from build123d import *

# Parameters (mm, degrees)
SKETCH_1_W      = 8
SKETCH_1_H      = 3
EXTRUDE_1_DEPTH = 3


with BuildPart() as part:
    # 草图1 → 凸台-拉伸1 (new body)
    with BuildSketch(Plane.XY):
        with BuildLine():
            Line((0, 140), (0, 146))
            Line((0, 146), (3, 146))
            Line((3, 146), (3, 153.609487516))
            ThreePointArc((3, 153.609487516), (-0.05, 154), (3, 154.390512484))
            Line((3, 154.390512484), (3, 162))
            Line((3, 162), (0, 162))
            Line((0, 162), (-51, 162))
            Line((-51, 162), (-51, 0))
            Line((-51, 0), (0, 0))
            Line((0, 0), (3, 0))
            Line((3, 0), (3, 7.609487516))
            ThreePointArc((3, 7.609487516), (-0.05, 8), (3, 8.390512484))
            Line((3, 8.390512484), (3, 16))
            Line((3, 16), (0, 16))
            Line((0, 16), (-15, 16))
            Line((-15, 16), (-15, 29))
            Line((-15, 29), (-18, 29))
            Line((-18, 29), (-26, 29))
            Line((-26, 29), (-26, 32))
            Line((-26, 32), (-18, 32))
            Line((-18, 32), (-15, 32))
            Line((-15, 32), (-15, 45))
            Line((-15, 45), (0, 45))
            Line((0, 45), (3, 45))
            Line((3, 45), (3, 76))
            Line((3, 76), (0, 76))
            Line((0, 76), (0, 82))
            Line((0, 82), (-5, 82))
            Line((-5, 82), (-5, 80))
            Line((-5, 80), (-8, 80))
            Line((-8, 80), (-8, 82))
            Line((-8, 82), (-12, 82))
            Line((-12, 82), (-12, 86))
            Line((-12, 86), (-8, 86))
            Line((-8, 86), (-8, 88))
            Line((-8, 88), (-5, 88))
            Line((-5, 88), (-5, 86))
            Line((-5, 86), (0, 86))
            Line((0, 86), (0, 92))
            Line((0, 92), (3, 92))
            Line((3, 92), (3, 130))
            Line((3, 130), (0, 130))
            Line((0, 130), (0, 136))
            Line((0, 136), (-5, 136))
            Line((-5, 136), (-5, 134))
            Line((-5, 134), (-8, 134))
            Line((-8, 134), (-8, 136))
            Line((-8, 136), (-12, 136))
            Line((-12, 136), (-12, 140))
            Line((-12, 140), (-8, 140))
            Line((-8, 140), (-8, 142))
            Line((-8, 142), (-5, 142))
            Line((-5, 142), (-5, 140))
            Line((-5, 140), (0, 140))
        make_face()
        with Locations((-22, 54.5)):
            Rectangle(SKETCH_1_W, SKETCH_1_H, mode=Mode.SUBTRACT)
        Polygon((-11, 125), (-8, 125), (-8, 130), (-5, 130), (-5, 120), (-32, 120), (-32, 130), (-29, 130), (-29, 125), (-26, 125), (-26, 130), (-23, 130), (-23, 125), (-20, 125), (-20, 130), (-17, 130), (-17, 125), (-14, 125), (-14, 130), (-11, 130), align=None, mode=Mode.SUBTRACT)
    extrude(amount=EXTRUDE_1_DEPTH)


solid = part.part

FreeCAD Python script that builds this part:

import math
import FreeCAD as App
import Part
import Sketcher
from FreeCAD import Vector

doc = App.newDocument("Part")
body = doc.addObject("PartDesign::Body", "Body")

sketch1 = body.newObject("Sketcher::SketchObject", "Sketch")
sketch1.AttachmentSupport = (doc.getObject("XY_Plane"), [""])
sketch1.MapMode = "FlatFace"
sketch1.addGeometry(Part.LineSegment(Vector(0, 140, 0), Vector(0, 146, 0)), False)
sketch1.addGeometry(Part.LineSegment(Vector(0, 146, 0), Vector(3, 146, 0)), False)
sketch1.addGeometry(Part.LineSegment(Vector(3, 146, 0), Vector(3, 153.6, 0)), False)
sketch1.addGeometry(Part.ArcOfCircle(Part.Circle(Vector(1.5, 154, 0), Vector(0, 0, 1), 1.6), math.radians(15), math.radians(345)), False)
sketch1.addGeometry(Part.LineSegment(Vector(3, 154.4, 0), Vector(3, 162, 0)), False)
sketch1.addGeometry(Part.LineSegment(Vector(3, 162, 0), Vector(-51, 162, 0)), False)
sketch1.addGeometry(Part.LineSegment(Vector(-51, 162, 0), Vector(-51, 0, 0)), False)
sketch1.addGeometry(Part.LineSegment(Vector(-51, 0, 0), Vector(3, 0, 0)), False)
sketch1.addGeometry(Part.LineSegment(Vector(3, 0, 0), Vector(3, 7.6, 0)), False)
sketch1.addGeometry(Part.ArcOfCircle(Part.Circle(Vector(1.5, 8, 0), Vector(0, 0, 1), 1.6), math.radians(15), math.radians(345)), False)
sketch1.addGeometry(Part.LineSegment(Vector(3, 8.4, 0), Vector(3, 16, 0)), False)
sketch1.addGeometry(Part.LineSegment(Vector(3, 16, 0), Vector(-15, 16, 0)), False)
sketch1.addGeometry(Part.LineSegment(Vector(-15, 16, 0), Vector(-15, 29, 0)), False)
sketch1.addGeometry(Part.LineSegment(Vector(-15, 29, 0), Vector(-26, 29, 0)), False)
sketch1.addGeometry(Part.LineSegment(Vector(-26, 29, 0), Vector(-26, 32, 0)), False)
sketch1.addGeometry(Part.LineSegment(Vector(-26, 32, 0), Vector(-15, 32, 0)), False)
sketch1.addGeometry(Part.LineSegment(Vector(-15, 32, 0), Vector(-15, 45, 0)), False)
sketch1.addGeometry(Part.LineSegment(Vector(-15, 45, 0), Vector(3, 45, 0)), False)
sketch1.addGeometry(Part.LineSegment(Vector(3, 45, 0), Vector(3, 76, 0)), False)
sketch1.addGeometry(Part.LineSegment(Vector(3, 76, 0), Vector(0, 76, 0)), False)
sketch1.addGeometry(Part.LineSegment(Vector(0, 76, 0), Vector(0, 82, 0)), False)
sketch1.addGeometry(Part.LineSegment(Vector(0, 82, 0), Vector(-5, 82, 0)), False)
sketch1.addGeometry(Part.LineSegment(Vector(-5, 82, 0), Vector(-5, 80, 0)), False)
sketch1.addGeometry(Part.LineSegment(Vector(-5, 80, 0), Vector(-8, 80, 0)), False)
sketch1.addGeometry(Part.LineSegment(Vector(-8, 80, 0), Vector(-8, 82, 0)), False)
sketch1.addGeometry(Part.LineSegment(Vector(-8, 82, 0), Vector(-12, 82, 0)), False)
sketch1.addGeometry(Part.LineSegment(Vector(-12, 82, 0), Vector(-12, 86, 0)), False)
sketch1.addGeometry(Part.LineSegment(Vector(-12, 86, 0), Vector(-8, 86, 0)), False)
sketch1.addGeometry(Part.LineSegment(Vector(-8, 86, 0), Vector(-8, 88, 0)), False)
sketch1.addGeometry(Part.LineSegment(Vector(-8, 88, 0), Vector(-5, 88, 0)), False)
sketch1.addGeometry(Part.LineSegment(Vector(-5, 88, 0), Vector(-5, 86, 0)), False)
sketch1.addGeometry(Part.LineSegment(Vector(-5, 86, 0), Vector(0, 86, 0)), False)
sketch1.addGeometry(Part.LineSegment(Vector(0, 86, 0), Vector(0, 92, 0)), False)
sketch1.addGeometry(Part.LineSegment(Vector(0, 92, 0), Vector(3, 92, 0)), False)
sketch1.addGeometry(Part.LineSegment(Vector(3, 92, 0), Vector(3, 130, 0)), False)
sketch1.addGeometry(Part.LineSegment(Vector(3, 130, 0), Vector(0, 130, 0)), False)
sketch1.addGeometry(Part.LineSegment(Vector(0, 130, 0), Vector(0, 136, 0)), False)
sketch1.addGeometry(Part.LineSegment(Vector(0, 136, 0), Vector(-5, 136, 0)), False)
sketch1.addGeometry(Part.LineSegment(Vector(-5, 136, 0), Vector(-5, 134, 0)), False)
sketch1.addGeometry(Part.LineSegment(Vector(-5, 134, 0), Vector(-8, 134, 0)), False)
sketch1.addGeometry(Part.LineSegment(Vector(-8, 134, 0), Vector(-8, 136, 0)), False)
sketch1.addGeometry(Part.LineSegment(Vector(-8, 136, 0), Vector(-12, 136, 0)), False)
sketch1.addGeometry(Part.LineSegment(Vector(-12, 136, 0), Vector(-12, 140, 0)), False)
sketch1.addGeometry(Part.LineSegment(Vector(-12, 140, 0), Vector(-8, 140, 0)), False)
sketch1.addGeometry(Part.LineSegment(Vector(-8, 140, 0), Vector(-8, 142, 0)), False)
sketch1.addGeometry(Part.LineSegment(Vector(-8, 142, 0), Vector(-5, 142, 0)), False)
sketch1.addGeometry(Part.LineSegment(Vector(-5, 142, 0), Vector(-5, 140, 0)), False)
sketch1.addGeometry(Part.LineSegment(Vector(-5, 140, 0), Vector(0, 140, 0)), False)
sketch1.addGeometry(Part.LineSegment(Vector(-18, 53, 0), Vector(-26, 53, 0)), False)
sketch1.addGeometry(Part.LineSegment(Vector(-26, 53, 0), Vector(-26, 56, 0)), False)
sketch1.addGeometry(Part.LineSegment(Vector(-26, 56, 0), Vector(-18, 56, 0)), False)
sketch1.addGeometry(Part.LineSegment(Vector(-18, 56, 0), Vector(-18, 53, 0)), False)
sketch1.addGeometry(Part.LineSegment(Vector(-11, 130, 0), Vector(-11, 125, 0)), False)
sketch1.addGeometry(Part.LineSegment(Vector(-11, 125, 0), Vector(-8, 125, 0)), False)
sketch1.addGeometry(Part.LineSegment(Vector(-8, 125, 0), Vector(-8, 130, 0)), False)
sketch1.addGeometry(Part.LineSegment(Vector(-8, 130, 0), Vector(-5, 130, 0)), False)
sketch1.addGeometry(Part.LineSegment(Vector(-5, 130, 0), Vector(-5, 120, 0)), False)
sketch1.addGeometry(Part.LineSegment(Vector(-5, 120, 0), Vector(-32, 120, 0)), False)
sketch1.addGeometry(Part.LineSegment(Vector(-32, 120, 0), Vector(-32, 130, 0)), False)
sketch1.addGeometry(Part.LineSegment(Vector(-32, 130, 0), Vector(-29, 130, 0)), False)
sketch1.addGeometry(Part.LineSegment(Vector(-29, 130, 0), Vector(-29, 125, 0)), False)
sketch1.addGeometry(Part.LineSegment(Vector(-29, 125, 0), Vector(-26, 125, 0)), False)
sketch1.addGeometry(Part.LineSegment(Vector(-26, 125, 0), Vector(-26, 130, 0)), False)
sketch1.addGeometry(Part.LineSegment(Vector(-26, 130, 0), Vector(-23, 130, 0)), False)
sketch1.addGeometry(Part.LineSegment(Vector(-23, 130, 0), Vector(-23, 125, 0)), False)
sketch1.addGeometry(Part.LineSegment(Vector(-23, 125, 0), Vector(-20, 125, 0)), False)
sketch1.addGeometry(Part.LineSegment(Vector(-20, 125, 0), Vector(-20, 130, 0)), False)
sketch1.addGeometry(Part.LineSegment(Vector(-20, 130, 0), Vector(-17, 130, 0)), False)
sketch1.addGeometry(Part.LineSegment(Vector(-17, 130, 0), Vector(-17, 125, 0)), False)
sketch1.addGeometry(Part.LineSegment(Vector(-17, 125, 0), Vector(-14, 125, 0)), False)
sketch1.addGeometry(Part.LineSegment(Vector(-14, 125, 0), Vector(-14, 130, 0)), False)
sketch1.addGeometry(Part.LineSegment(Vector(-14, 130, 0), Vector(-11, 130, 0)), False)
sketch1.addConstraint(Sketcher.Constraint("Coincident", 0, 2, 1, 1))
sketch1.addConstraint(Sketcher.Constraint("Coincident", 1, 2, 2, 1))
sketch1.addConstraint(Sketcher.Constraint("Coincident", 2, 2, 3, 2))
sketch1.addConstraint(Sketcher.Constraint("Coincident", 3, 1, 4, 1))
sketch1.addConstraint(Sketcher.Constraint("Coincident", 4, 2, 5, 1))
sketch1.addConstraint(Sketcher.Constraint("Coincident", 5, 2, 6, 1))
sketch1.addConstraint(Sketcher.Constraint("Coincident", 6, 2, 7, 1))
sketch1.addConstraint(Sketcher.Constraint("Coincident", 7, 2, 8, 1))
sketch1.addConstraint(Sketcher.Constraint("Coincident", 8, 2, 9, 2))
sketch1.addConstraint(Sketcher.Constraint("Coincident", 9, 1, 10, 1))
sketch1.addConstraint(Sketcher.Constraint("Coincident", 10, 2, 11, 1))
sketch1.addConstraint(Sketcher.Constraint("Coincident", 11, 2, 12, 1))
sketch1.addConstraint(Sketcher.Constraint("Coincident", 12, 2, 13, 1))
sketch1.addConstraint(Sketcher.Constraint("Coincident", 13, 2, 14, 1))
sketch1.addConstraint(Sketcher.Constraint("Coincident", 14, 2, 15, 1))
sketch1.addConstraint(Sketcher.Constraint("Coincident", 15, 2, 16, 1))
sketch1.addConstraint(Sketcher.Constraint("Coincident", 16, 2, 17, 1))
sketch1.addConstraint(Sketcher.Constraint("Coincident", 17, 2, 18, 1))
sketch1.addConstraint(Sketcher.Constraint("Coincident", 18, 2, 19, 1))
sketch1.addConstraint(Sketcher.Constraint("Coincident", 19, 2, 20, 1))
sketch1.addConstraint(Sketcher.Constraint("Coincident", 20, 2, 21, 1))
sketch1.addConstraint(Sketcher.Constraint("Coincident", 21, 2, 22, 1))
sketch1.addConstraint(Sketcher.Constraint("Coincident", 22, 2, 23, 1))
sketch1.addConstraint(Sketcher.Constraint("Coincident", 23, 2, 24, 1))
sketch1.addConstraint(Sketcher.Constraint("Coincident", 24, 2, 25, 1))
sketch1.addConstraint(Sketcher.Constraint("Coincident", 25, 2, 26, 1))
sketch1.addConstraint(Sketcher.Constraint("Coincident", 26, 2, 27, 1))
sketch1.addConstraint(Sketcher.Constraint("Coincident", 27, 2, 28, 1))
sketch1.addConstraint(Sketcher.Constraint("Coincident", 28, 2, 29, 1))
sketch1.addConstraint(Sketcher.Constraint("Coincident", 29, 2, 30, 1))
sketch1.addConstraint(Sketcher.Constraint("Coincident", 30, 2, 31, 1))
sketch1.addConstraint(Sketcher.Constraint("Coincident", 31, 2, 32, 1))
sketch1.addConstraint(Sketcher.Constraint("Coincident", 32, 2, 33, 1))
sketch1.addConstraint(Sketcher.Constraint("Coincident", 33, 2, 34, 1))
sketch1.addConstraint(Sketcher.Constraint("Coincident", 34, 2, 35, 1))
sketch1.addConstraint(Sketcher.Constraint("Coincident", 35, 2, 36, 1))
sketch1.addConstraint(Sketcher.Constraint("Coincident", 36, 2, 37, 1))
sketch1.addConstraint(Sketcher.Constraint("Coincident", 37, 2, 38, 1))
sketch1.addConstraint(Sketcher.Constraint("Coincident", 38, 2, 39, 1))
sketch1.addConstraint(Sketcher.Constraint("Coincident", 39, 2, 40, 1))
sketch1.addConstraint(Sketcher.Constraint("Coincident", 40, 2, 41, 1))
sketch1.addConstraint(Sketcher.Constraint("Coincident", 41, 2, 42, 1))
sketch1.addConstraint(Sketcher.Constraint("Coincident", 42, 2, 43, 1))
sketch1.addConstraint(Sketcher.Constraint("Coincident", 43, 2, 44, 1))
sketch1.addConstraint(Sketcher.Constraint("Coincident", 44, 2, 45, 1))
sketch1.addConstraint(Sketcher.Constraint("Coincident", 45, 2, 46, 1))
sketch1.addConstraint(Sketcher.Constraint("Coincident", 46, 2, 47, 1))
sketch1.addConstraint(Sketcher.Constraint("Coincident", 47, 2, 0, 1))
sketch1.addConstraint(Sketcher.Constraint("Coincident", 48, 2, 49, 1))
sketch1.addConstraint(Sketcher.Constraint("Coincident", 49, 2, 50, 1))
sketch1.addConstraint(Sketcher.Constraint("Coincident", 50, 2, 51, 1))
sketch1.addConstraint(Sketcher.Constraint("Coincident", 51, 2, 48, 1))
sketch1.addConstraint(Sketcher.Constraint("Coincident", 52, 2, 53, 1))
sketch1.addConstraint(Sketcher.Constraint("Coincident", 53, 2, 54, 1))
sketch1.addConstraint(Sketcher.Constraint("Coincident", 54, 2, 55, 1))
sketch1.addConstraint(Sketcher.Constraint("Coincident", 55, 2, 56, 1))
sketch1.addConstraint(Sketcher.Constraint("Coincident", 56, 2, 57, 1))
sketch1.addConstraint(Sketcher.Constraint("Coincident", 57, 2, 58, 1))
sketch1.addConstraint(Sketcher.Constraint("Coincident", 58, 2, 59, 1))
sketch1.addConstraint(Sketcher.Constraint("Coincident", 59, 2, 60, 1))
sketch1.addConstraint(Sketcher.Constraint("Coincident", 60, 2, 61, 1))
sketch1.addConstraint(Sketcher.Constraint("Coincident", 61, 2, 62, 1))
sketch1.addConstraint(Sketcher.Constraint("Coincident", 62, 2, 63, 1))
sketch1.addConstraint(Sketcher.Constraint("Coincident", 63, 2, 64, 1))
sketch1.addConstraint(Sketcher.Constraint("Coincident", 64, 2, 65, 1))
sketch1.addConstraint(Sketcher.Constraint("Coincident", 65, 2, 66, 1))
sketch1.addConstraint(Sketcher.Constraint("Coincident", 66, 2, 67, 1))
sketch1.addConstraint(Sketcher.Constraint("Coincident", 67, 2, 68, 1))
sketch1.addConstraint(Sketcher.Constraint("Coincident", 68, 2, 69, 1))
sketch1.addConstraint(Sketcher.Constraint("Coincident", 69, 2, 70, 1))
sketch1.addConstraint(Sketcher.Constraint("Coincident", 70, 2, 71, 1))
sketch1.addConstraint(Sketcher.Constraint("Coincident", 71, 2, 52, 1))
sketch1.addConstraint(Sketcher.Constraint("Vertical", 0))
sketch1.addConstraint(Sketcher.Constraint("Horizontal", 1))
sketch1.addConstraint(Sketcher.Constraint("Vertical", 2))
sketch1.addConstraint(Sketcher.Constraint("Vertical", 4))
sketch1.addConstraint(Sketcher.Constraint("Horizontal", 5))
sketch1.addConstraint(Sketcher.Constraint("Vertical", 6))
sketch1.addConstraint(Sketcher.Constraint("Horizontal", 7))
sketch1.addConstraint(Sketcher.Constraint("Vertical", 8))
sketch1.addConstraint(Sketcher.Constraint("Vertical", 10))
sketch1.addConstraint(Sketcher.Constraint("Horizontal", 11))
sketch1.addConstraint(Sketcher.Constraint("Vertical", 12))
sketch1.addConstraint(Sketcher.Constraint("Horizontal", 13))
sketch1.addConstraint(Sketcher.Constraint("Vertical", 14))
sketch1.addConstraint(Sketcher.Constraint("Horizontal", 15))
sketch1.addConstraint(Sketcher.Constraint("Vertical", 16))
sketch1.addConstraint(Sketcher.Constraint("Horizontal", 17))
sketch1.addConstraint(Sketcher.Constraint("Vertical", 18))
sketch1.addConstraint(Sketcher.Constraint("Horizontal", 19))
sketch1.addConstraint(Sketcher.Constraint("Vertical", 20))
sketch1.addConstraint(Sketcher.Constraint("Horizontal", 21))
sketch1.addConstraint(Sketcher.Constraint("Vertical", 22))
sketch1.addConstraint(Sketcher.Constraint("Horizontal", 23))
sketch1.addConstraint(Sketcher.Constraint("Vertical", 24))
sketch1.addConstraint(Sketcher.Constraint("Horizontal", 25))
sketch1.addConstraint(Sketcher.Constraint("Vertical", 26))
sketch1.addConstraint(Sketcher.Constraint("Horizontal", 27))
sketch1.addConstraint(Sketcher.Constraint("Vertical", 28))
sketch1.addConstraint(Sketcher.Constraint("Horizontal", 29))
sketch1.addConstraint(Sketcher.Constraint("Vertical", 30))
sketch1.addConstraint(Sketcher.Constraint("Horizontal", 31))
sketch1.addConstraint(Sketcher.Constraint("Vertical", 32))
sketch1.addConstraint(Sketcher.Constraint("Horizontal", 33))
sketch1.addConstraint(Sketcher.Constraint("Vertical", 34))
sketch1.addConstraint(Sketcher.Constraint("Horizontal", 35))
sketch1.addConstraint(Sketcher.Constraint("Vertical", 36))
sketch1.addConstraint(Sketcher.Constraint("Horizontal", 37))
sketch1.addConstraint(Sketcher.Constraint("Vertical", 38))
sketch1.addConstraint(Sketcher.Constraint("Horizontal", 39))
sketch1.addConstraint(Sketcher.Constraint("Vertical", 40))
sketch1.addConstraint(Sketcher.Constraint("Horizontal", 41))
sketch1.addConstraint(Sketcher.Constraint("Vertical", 42))
sketch1.addConstraint(Sketcher.Constraint("Horizontal", 43))
sketch1.addConstraint(Sketcher.Constraint("Vertical", 44))
sketch1.addConstraint(Sketcher.Constraint("Horizontal", 45))
sketch1.addConstraint(Sketcher.Constraint("Vertical", 46))
sketch1.addConstraint(Sketcher.Constraint("Horizontal", 47))
sketch1.addConstraint(Sketcher.Constraint("Horizontal", 48))
sketch1.addConstraint(Sketcher.Constraint("Vertical", 49))
sketch1.addConstraint(Sketcher.Constraint("Horizontal", 50))
sketch1.addConstraint(Sketcher.Constraint("Vertical", 51))
sketch1.addConstraint(Sketcher.Constraint("Vertical", 52))
sketch1.addConstraint(Sketcher.Constraint("Horizontal", 53))
sketch1.addConstraint(Sketcher.Constraint("Vertical", 54))
sketch1.addConstraint(Sketcher.Constraint("Horizontal", 55))
sketch1.addConstraint(Sketcher.Constraint("Vertical", 56))
sketch1.addConstraint(Sketcher.Constraint("Horizontal", 57))
sketch1.addConstraint(Sketcher.Constraint("Vertical", 58))
sketch1.addConstraint(Sketcher.Constraint("Horizontal", 59))
sketch1.addConstraint(Sketcher.Constraint("Vertical", 60))
sketch1.addConstraint(Sketcher.Constraint("Horizontal", 61))
sketch1.addConstraint(Sketcher.Constraint("Vertical", 62))
sketch1.addConstraint(Sketcher.Constraint("Horizontal", 63))
sketch1.addConstraint(Sketcher.Constraint("Vertical", 64))
sketch1.addConstraint(Sketcher.Constraint("Horizontal", 65))
sketch1.addConstraint(Sketcher.Constraint("Vertical", 66))
sketch1.addConstraint(Sketcher.Constraint("Horizontal", 67))
sketch1.addConstraint(Sketcher.Constraint("Vertical", 68))
sketch1.addConstraint(Sketcher.Constraint("Horizontal", 69))
sketch1.addConstraint(Sketcher.Constraint("Vertical", 70))
sketch1.addConstraint(Sketcher.Constraint("Horizontal", 71))
sketch1.addConstraint(Sketcher.Constraint("Equal", 3, 9))
sketch1.addConstraint(Sketcher.Constraint("PointOnObject", 0, 2, -2))
sketch1.addConstraint(Sketcher.Constraint("PointOnObject", 6, 2, -1))
sketch1.addConstraint(Sketcher.Constraint("PointOnObject", 19, 2, -2))
sketch1.addConstraint(Sketcher.Constraint("PointOnObject", 31, 2, -2))
sketch1.addConstraint(Sketcher.Constraint("PointOnObject", 35, 2, -2))
sketch1.addConstraint(Sketcher.Constraint("Horizontal", 21, 2, 24, 2))
sketch1.addConstraint(Sketcher.Constraint("Horizontal", 27, 2, 30, 2))
sketch1.addConstraint(Sketcher.Constraint("Horizontal", 37, 2, 40, 2))
sketch1.addConstraint(Sketcher.Constraint("Horizontal", 43, 2, 46, 2))
sketch1.addConstraint(Sketcher.Constraint("Horizontal", 35, 2, 54, 2))
sketch1.addConstraint(Sketcher.Constraint("Horizontal", 55, 2, 58, 2))
sketch1.addConstraint(Sketcher.Constraint("Horizontal", 53, 2, 60, 2))
sketch1.addConstraint(Sketcher.Constraint("Horizontal", 59, 2, 62, 2))
sketch1.addConstraint(Sketcher.Constraint("Horizontal", 61, 2, 64, 2))
sketch1.addConstraint(Sketcher.Constraint("Horizontal", 63, 2, 66, 2))
sketch1.addConstraint(Sketcher.Constraint("Horizontal", 65, 2, 68, 2))
sketch1.addConstraint(Sketcher.Constraint("Horizontal", 67, 2, 70, 2))
sketch1.addConstraint(Sketcher.Constraint("Vertical", 3, 3, 9, 3))
sketch1.addConstraint(Sketcher.Constraint("Vertical", 2, 2, 3, 1))
sketch1.addConstraint(Sketcher.Constraint("Vertical", 4, 2, 7, 2))
sketch1.addConstraint(Sketcher.Constraint("Vertical", 8, 2, 9, 1))
sketch1.addConstraint(Sketcher.Constraint("Vertical", 12, 2, 15, 2))
sketch1.addConstraint(Sketcher.Constraint("Vertical", 10, 2, 17, 2))
sketch1.addConstraint(Sketcher.Constraint("Vertical", 24, 2, 27, 2))
sketch1.addConstraint(Sketcher.Constraint("Vertical", 22, 2, 29, 2))
sketch1.addConstraint(Sketcher.Constraint("Vertical", 18, 2, 33, 2))
sketch1.addConstraint(Sketcher.Constraint("Vertical", 30, 2, 37, 2))
sketch1.addConstraint(Sketcher.Constraint("Vertical", 28, 2, 39, 2))
sketch1.addConstraint(Sketcher.Constraint("Vertical", 26, 2, 41, 2))
sketch1.addConstraint(Sketcher.Constraint("Vertical", 40, 2, 43, 2))
sketch1.addConstraint(Sketcher.Constraint("Vertical", 38, 2, 45, 2))
sketch1.addConstraint(Sketcher.Constraint("Vertical", 14, 2, 48, 2))
sketch1.addConstraint(Sketcher.Constraint("Vertical", 44, 2, 53, 2))
sketch1.addConstraint(Sketcher.Constraint("Vertical", 46, 2, 55, 2))
sketch1.addConstraint(Sketcher.Constraint("Vertical", 49, 2, 61, 2))
sketch1.addConstraint(Sketcher.Constraint("Equal", 19, 23))
sketch1.addConstraint(Sketcher.Constraint("Equal", 45, 53))
sketch1.addConstraint(Sketcher.Constraint("Equal", 55, 59))
sketch1.addConstraint(Sketcher.Constraint("Equal", 59, 61))
sketch1.addConstraint(Sketcher.Constraint("Equal", 61, 63))
sketch1.addConstraint(Sketcher.Constraint("Equal", 63, 65))
sketch1.addConstraint(Sketcher.Constraint("Equal", 65, 67))
sketch1.addConstraint(Sketcher.Constraint("Equal", 67, 69))
sketch1.addConstraint(Sketcher.Constraint("Equal", 69, 71))
sketch1.addConstraint(Sketcher.Constraint("Equal", 2, 4))
sketch1.addConstraint(Sketcher.Constraint("Equal", 4, 8))
sketch1.addConstraint(Sketcher.Constraint("Equal", 8, 10))
sketch1.addConstraint(Sketcher.Constraint("Equal", 71, 14))
sketch1.addConstraint(Sketcher.Constraint("Equal", 12, 16))
sketch1.addConstraint(Sketcher.Constraint("Equal", 0, 20))
sketch1.addConstraint(Sketcher.Constraint("Equal", 43, 26))
sketch1.addConstraint(Sketcher.Constraint("Equal", 24, 28))
sketch1.addConstraint(Sketcher.Constraint("Equal", 20, 32))
sketch1.addConstraint(Sketcher.Constraint("Equal", 32, 36))
sketch1.addConstraint(Sketcher.Constraint("Equal", 30, 38))
sketch1.addConstraint(Sketcher.Constraint("Equal", 26, 42))
sketch1.addConstraint(Sketcher.Constraint("Equal", 40, 44))
sketch1.addConstraint(Sketcher.Constraint("Equal", 14, 49))
sketch1.addConstraint(Sketcher.Constraint("Equal", 47, 52))
sketch1.addConstraint(Sketcher.Constraint("DistanceX", 1, 1, 1, 2, 3.0))
sketch1.addConstraint(Sketcher.Constraint("DistanceX", 5, 2, 5, 1, 54.0))
sketch1.addConstraint(Sketcher.Constraint("DistanceX", 11, 2, 11, 1, 18.0))
sketch1.addConstraint(Sketcher.Constraint("DistanceX", 13, 2, 13, 1, 11.0))
sketch1.addConstraint(Sketcher.Constraint("DistanceX", 25, 2, 25, 1, 4.0))
sketch1.addConstraint(Sketcher.Constraint("DistanceX", 48, 2, 48, 1, 8.0))
sketch1.addConstraint(Sketcher.Constraint("DistanceY", 0, 1, 0, 2, 6.0))
sketch1.addConstraint(Sketcher.Constraint("DistanceY", 6, 2, 6, 1, 162.0))
sketch1.addConstraint(Sketcher.Constraint("DistanceY", 12, 1, 12, 2, 13.0))
sketch1.addConstraint(Sketcher.Constraint("DistanceY", 18, 1, 18, 2, 31.0))
sketch1.addConstraint(Sketcher.Constraint("DistanceY", 22, 2, 22, 1, 2.0))
sketch1.addConstraint(Sketcher.Constraint("DistanceY", 34, 1, 34, 2, 38.0))
sketch1.addConstraint(Sketcher.Constraint("DistanceY", 56, 2, 56, 1, 10.0))
sketch1.addConstraint(Sketcher.Constraint("Radius", 3, 1.55))
sketch1.addConstraint(Sketcher.Constraint("DistanceY", -1, 1, 48, 2, 53.0))
sketch1.addConstraint(Sketcher.Constraint("DistanceX", -1, 1, 3, 3, 1.5))
pad1 = body.newObject("PartDesign::Pad", "Pad")
pad1.Profile = sketch1
pad1.Length = 3

doc.recompute()
